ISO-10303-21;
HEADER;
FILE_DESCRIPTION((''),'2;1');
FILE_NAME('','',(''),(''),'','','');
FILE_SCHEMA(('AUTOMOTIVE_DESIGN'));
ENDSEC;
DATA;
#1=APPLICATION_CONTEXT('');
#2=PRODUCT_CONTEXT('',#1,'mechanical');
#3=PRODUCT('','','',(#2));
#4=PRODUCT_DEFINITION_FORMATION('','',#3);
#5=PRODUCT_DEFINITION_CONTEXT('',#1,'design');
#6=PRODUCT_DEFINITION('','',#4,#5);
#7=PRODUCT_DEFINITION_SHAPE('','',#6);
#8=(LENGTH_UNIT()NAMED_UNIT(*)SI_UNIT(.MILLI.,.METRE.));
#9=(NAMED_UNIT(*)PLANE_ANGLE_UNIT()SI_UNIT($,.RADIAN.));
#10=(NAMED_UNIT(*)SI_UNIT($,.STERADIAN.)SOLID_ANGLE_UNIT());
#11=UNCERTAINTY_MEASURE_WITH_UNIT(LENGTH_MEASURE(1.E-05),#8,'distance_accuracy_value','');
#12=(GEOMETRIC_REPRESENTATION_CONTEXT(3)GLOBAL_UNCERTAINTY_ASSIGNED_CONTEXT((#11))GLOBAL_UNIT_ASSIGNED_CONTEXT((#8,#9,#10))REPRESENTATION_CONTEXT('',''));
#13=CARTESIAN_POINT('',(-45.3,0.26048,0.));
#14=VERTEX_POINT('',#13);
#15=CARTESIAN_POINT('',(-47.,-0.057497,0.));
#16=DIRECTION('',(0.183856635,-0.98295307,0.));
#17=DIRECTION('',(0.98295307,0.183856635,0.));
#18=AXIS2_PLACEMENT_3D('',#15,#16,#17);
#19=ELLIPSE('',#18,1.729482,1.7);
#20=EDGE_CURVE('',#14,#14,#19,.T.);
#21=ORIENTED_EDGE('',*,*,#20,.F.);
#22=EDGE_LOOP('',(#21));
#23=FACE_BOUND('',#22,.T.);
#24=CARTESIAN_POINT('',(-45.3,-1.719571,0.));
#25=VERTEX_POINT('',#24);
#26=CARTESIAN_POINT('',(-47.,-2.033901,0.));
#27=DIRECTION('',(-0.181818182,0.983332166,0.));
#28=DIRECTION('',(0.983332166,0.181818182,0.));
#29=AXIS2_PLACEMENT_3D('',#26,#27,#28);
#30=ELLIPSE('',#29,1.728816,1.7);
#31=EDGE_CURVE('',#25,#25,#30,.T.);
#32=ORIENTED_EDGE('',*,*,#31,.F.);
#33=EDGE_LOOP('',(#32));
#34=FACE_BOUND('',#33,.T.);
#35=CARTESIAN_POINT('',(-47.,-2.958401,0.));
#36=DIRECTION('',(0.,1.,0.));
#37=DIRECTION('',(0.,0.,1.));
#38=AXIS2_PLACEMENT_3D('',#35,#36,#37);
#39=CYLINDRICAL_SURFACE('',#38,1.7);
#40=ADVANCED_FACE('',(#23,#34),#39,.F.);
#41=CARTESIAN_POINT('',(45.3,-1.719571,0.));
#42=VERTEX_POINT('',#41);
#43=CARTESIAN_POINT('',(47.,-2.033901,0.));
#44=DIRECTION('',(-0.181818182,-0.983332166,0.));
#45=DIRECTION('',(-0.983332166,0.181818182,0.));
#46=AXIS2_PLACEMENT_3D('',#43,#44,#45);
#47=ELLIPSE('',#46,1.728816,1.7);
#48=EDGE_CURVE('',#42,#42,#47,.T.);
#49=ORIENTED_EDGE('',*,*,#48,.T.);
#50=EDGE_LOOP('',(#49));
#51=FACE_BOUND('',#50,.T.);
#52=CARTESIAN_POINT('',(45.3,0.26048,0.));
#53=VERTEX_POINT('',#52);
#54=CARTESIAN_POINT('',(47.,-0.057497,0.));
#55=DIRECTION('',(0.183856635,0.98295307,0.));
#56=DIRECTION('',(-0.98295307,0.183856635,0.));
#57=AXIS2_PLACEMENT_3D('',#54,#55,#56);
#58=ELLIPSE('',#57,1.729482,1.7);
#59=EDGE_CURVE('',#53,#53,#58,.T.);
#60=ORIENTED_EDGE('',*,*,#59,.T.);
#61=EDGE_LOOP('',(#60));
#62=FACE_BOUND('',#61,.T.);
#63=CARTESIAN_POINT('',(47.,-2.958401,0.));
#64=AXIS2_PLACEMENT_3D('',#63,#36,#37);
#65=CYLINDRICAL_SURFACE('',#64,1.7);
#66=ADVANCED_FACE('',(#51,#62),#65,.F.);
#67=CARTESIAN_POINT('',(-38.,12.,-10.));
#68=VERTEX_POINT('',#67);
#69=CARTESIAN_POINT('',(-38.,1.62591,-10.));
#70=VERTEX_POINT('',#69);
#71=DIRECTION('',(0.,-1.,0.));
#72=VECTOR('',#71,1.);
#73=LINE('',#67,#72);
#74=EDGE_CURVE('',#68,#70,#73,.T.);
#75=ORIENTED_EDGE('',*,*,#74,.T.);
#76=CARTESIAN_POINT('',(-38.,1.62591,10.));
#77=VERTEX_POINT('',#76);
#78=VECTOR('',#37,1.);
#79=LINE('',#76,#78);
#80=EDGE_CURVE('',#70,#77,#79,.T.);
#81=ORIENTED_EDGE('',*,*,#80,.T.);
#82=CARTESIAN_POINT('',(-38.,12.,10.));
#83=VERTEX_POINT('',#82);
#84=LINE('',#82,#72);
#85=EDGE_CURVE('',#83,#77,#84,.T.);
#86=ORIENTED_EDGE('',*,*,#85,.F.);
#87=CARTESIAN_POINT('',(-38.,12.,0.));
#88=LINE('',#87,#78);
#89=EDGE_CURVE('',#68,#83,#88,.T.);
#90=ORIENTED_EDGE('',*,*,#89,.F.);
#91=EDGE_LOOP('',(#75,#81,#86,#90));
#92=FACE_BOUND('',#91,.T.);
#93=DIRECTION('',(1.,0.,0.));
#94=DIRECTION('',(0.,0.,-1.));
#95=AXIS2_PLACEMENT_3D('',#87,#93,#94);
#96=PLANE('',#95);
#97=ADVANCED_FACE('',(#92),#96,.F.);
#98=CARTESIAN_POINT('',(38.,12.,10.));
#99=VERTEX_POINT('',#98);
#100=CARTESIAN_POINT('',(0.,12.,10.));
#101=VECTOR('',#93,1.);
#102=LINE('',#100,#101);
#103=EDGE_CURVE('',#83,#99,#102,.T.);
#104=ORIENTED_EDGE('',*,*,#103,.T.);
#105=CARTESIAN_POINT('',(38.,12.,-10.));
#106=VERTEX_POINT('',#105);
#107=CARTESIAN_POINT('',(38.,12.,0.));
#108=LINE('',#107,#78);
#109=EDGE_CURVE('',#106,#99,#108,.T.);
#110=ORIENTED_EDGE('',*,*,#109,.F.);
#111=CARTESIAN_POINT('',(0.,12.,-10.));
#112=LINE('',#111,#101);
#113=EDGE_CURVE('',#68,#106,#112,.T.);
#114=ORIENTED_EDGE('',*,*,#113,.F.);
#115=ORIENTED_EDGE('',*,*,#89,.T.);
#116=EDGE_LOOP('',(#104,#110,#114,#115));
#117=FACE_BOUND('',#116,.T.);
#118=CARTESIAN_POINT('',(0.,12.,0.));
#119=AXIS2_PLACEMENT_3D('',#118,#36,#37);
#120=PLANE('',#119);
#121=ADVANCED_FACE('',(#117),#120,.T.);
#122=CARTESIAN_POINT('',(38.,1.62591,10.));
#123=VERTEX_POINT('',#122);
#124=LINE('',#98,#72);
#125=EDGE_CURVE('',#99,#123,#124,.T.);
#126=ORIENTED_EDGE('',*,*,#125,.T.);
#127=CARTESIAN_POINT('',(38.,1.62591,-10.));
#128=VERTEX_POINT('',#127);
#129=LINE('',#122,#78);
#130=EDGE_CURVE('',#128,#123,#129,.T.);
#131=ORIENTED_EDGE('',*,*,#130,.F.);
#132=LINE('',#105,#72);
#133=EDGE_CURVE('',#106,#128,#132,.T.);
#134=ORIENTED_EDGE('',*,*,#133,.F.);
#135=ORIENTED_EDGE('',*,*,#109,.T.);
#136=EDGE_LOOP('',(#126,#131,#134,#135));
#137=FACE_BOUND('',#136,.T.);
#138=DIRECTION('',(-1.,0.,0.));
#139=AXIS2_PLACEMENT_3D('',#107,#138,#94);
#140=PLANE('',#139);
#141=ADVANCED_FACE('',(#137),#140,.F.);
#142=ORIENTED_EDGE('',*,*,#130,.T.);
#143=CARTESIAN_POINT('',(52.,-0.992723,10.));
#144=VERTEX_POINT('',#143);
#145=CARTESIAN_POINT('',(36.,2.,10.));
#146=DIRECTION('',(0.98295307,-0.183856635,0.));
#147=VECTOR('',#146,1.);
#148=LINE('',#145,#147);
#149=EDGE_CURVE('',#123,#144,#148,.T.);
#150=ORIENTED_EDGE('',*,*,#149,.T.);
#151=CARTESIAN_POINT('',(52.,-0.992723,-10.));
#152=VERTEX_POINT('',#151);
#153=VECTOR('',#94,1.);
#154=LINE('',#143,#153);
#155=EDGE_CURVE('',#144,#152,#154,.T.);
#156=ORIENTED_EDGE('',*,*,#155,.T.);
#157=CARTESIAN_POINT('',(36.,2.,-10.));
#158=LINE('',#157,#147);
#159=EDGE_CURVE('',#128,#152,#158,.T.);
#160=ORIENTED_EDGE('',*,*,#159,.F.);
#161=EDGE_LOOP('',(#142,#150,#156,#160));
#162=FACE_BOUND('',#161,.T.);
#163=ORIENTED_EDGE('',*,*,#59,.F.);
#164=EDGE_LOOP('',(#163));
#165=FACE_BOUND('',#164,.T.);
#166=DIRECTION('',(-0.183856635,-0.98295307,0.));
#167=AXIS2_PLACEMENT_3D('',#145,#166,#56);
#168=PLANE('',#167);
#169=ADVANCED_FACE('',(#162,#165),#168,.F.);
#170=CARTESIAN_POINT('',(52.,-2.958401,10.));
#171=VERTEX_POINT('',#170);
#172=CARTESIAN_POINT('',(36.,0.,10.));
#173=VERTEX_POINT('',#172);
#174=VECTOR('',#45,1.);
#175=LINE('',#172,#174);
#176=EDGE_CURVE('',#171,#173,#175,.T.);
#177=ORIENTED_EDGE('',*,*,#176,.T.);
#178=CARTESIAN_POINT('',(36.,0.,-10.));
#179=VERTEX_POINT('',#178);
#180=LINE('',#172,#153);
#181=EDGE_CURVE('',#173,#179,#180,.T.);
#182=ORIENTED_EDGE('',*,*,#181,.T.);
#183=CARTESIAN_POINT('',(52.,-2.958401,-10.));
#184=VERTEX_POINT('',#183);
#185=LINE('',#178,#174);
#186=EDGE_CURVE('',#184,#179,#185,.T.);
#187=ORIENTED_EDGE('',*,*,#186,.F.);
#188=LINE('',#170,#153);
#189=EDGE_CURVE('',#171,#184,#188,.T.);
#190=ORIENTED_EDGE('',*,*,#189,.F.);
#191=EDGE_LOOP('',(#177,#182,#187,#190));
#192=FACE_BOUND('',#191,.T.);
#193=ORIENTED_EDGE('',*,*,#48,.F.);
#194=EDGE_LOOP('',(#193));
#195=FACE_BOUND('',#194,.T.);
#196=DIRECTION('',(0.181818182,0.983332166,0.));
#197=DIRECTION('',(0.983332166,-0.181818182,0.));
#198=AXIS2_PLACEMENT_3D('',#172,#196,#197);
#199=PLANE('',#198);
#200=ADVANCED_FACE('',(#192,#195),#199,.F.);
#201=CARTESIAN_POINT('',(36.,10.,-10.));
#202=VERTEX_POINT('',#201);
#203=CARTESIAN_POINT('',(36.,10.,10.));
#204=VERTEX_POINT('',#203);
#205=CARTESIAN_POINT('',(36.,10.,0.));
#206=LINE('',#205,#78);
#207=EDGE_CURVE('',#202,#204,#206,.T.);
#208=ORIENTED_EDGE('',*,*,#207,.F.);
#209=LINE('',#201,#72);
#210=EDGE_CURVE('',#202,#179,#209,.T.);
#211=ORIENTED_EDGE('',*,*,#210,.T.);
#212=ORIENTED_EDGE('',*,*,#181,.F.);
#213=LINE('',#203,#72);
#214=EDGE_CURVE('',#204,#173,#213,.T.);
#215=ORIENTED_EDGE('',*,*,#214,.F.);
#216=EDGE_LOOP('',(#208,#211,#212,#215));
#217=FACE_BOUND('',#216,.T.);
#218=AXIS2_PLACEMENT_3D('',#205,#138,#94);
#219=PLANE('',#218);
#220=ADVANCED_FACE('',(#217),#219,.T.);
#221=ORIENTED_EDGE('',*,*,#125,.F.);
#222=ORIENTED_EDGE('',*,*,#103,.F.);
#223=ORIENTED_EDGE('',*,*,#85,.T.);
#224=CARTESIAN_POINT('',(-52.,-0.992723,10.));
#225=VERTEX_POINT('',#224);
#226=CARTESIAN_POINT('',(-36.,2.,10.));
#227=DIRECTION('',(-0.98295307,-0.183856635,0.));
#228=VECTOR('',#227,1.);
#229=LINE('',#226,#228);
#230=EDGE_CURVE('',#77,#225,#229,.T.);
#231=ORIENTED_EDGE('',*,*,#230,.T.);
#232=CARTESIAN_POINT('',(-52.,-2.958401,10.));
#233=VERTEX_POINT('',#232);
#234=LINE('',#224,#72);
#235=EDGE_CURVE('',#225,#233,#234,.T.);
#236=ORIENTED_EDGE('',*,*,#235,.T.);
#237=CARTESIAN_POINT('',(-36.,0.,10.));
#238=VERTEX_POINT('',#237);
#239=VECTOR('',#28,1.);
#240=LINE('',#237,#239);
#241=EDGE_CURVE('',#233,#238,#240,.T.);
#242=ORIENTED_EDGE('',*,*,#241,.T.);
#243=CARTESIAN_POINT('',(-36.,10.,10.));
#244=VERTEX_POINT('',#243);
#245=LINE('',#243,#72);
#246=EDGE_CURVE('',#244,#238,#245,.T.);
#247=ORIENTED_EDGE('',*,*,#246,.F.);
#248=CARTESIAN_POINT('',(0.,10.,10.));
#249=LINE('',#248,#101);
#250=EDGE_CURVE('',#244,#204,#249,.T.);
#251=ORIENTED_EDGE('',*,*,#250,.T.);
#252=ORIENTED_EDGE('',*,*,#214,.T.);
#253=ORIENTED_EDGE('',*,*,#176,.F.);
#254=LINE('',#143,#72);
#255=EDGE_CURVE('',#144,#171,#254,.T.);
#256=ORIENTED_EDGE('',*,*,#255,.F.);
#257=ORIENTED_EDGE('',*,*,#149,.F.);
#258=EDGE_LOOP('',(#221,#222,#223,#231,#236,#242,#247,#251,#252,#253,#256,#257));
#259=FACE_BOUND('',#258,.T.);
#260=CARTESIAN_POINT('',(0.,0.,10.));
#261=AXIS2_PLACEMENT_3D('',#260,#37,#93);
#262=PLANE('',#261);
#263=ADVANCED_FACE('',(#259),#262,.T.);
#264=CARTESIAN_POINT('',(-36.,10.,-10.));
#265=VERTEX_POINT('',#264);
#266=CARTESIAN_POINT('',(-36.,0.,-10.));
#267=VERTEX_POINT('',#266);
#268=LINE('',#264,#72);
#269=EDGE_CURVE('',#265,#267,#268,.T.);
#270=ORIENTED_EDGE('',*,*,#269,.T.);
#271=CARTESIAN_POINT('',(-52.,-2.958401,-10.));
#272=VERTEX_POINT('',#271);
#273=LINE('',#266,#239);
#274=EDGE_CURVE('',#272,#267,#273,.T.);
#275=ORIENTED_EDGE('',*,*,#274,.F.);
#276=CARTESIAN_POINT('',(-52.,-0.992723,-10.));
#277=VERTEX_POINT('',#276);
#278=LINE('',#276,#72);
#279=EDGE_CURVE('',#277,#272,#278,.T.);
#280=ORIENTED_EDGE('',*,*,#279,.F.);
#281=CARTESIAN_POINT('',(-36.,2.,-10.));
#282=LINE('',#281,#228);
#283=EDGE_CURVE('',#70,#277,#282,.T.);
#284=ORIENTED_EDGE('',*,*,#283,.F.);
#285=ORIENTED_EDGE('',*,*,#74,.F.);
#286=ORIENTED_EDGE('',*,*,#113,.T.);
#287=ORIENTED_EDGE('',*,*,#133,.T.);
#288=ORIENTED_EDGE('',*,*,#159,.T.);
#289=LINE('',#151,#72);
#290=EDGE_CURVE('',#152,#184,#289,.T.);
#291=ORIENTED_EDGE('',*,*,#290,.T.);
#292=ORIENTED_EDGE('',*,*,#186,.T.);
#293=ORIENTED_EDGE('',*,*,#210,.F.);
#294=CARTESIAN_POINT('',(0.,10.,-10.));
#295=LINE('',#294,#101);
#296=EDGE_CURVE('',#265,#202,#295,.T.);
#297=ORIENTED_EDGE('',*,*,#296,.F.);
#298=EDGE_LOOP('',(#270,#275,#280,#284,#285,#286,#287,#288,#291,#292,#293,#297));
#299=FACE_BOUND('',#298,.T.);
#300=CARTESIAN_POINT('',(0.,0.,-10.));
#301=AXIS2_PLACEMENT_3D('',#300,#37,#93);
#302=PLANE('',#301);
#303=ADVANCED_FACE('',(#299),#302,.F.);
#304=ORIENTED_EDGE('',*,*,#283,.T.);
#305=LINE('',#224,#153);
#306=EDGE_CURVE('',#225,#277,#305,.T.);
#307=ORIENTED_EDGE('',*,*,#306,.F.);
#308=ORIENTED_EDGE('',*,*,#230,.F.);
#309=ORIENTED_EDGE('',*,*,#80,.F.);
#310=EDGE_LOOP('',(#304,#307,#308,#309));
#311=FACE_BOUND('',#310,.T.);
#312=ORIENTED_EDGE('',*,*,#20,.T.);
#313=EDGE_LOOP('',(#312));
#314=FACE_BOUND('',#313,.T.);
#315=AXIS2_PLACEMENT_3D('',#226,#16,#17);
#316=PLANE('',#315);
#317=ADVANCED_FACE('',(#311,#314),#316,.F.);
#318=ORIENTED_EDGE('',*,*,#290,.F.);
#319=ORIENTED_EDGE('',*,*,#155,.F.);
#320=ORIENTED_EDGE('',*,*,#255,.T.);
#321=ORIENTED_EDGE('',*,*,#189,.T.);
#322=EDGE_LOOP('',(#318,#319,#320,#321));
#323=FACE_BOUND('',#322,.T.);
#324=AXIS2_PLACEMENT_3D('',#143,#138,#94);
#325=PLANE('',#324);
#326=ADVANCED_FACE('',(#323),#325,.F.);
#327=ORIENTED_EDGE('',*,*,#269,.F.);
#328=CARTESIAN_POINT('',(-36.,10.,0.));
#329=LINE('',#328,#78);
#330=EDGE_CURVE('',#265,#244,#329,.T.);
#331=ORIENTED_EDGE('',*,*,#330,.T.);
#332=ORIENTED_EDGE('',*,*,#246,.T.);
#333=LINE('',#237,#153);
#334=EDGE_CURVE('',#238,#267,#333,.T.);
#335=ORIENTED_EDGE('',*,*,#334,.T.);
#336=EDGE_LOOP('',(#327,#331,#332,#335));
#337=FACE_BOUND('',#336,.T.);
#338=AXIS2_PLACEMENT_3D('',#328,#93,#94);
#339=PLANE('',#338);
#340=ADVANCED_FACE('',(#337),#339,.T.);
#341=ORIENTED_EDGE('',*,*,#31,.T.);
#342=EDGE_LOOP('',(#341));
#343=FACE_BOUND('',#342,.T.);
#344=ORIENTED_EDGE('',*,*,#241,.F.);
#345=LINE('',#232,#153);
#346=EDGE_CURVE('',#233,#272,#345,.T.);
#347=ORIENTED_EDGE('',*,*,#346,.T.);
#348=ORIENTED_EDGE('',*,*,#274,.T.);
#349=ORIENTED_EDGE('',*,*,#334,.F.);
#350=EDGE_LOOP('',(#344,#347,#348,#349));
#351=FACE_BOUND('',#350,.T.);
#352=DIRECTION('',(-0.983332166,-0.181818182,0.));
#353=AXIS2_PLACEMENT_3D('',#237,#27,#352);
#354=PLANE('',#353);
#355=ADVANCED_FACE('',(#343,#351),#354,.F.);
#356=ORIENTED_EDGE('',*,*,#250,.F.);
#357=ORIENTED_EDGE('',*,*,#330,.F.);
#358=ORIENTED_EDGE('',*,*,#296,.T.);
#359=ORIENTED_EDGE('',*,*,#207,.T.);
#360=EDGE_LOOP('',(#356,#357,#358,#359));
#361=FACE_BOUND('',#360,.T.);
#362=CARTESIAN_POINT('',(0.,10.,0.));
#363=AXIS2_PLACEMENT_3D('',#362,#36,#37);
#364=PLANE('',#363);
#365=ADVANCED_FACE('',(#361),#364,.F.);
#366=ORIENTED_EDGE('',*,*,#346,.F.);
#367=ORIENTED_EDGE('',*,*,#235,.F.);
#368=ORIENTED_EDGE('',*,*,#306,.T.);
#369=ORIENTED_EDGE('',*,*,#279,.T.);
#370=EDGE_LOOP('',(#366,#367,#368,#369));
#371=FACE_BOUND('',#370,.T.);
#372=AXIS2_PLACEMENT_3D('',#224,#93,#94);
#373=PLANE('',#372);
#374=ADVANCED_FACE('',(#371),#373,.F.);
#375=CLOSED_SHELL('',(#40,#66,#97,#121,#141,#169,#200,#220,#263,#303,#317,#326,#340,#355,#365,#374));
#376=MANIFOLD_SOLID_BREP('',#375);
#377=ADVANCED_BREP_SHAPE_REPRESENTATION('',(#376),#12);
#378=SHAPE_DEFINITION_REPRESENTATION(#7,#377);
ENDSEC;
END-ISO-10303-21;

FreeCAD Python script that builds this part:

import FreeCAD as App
import Part
import Sketcher
from FreeCAD import Vector
Q = App.Units.Quantity

doc = App.newDocument("Part")
params = doc.addObject("Spreadsheet::Sheet", "Params")
for row, (alias, value) in enumerate([
    ("sketch1_height", "2 mm"),
    ("pad1_length", "20 mm"),
    ("sketch2_width", "38 mm"),
    ("sketch2_height", "20 mm"),
    ("pad2_length", "12 mm"),
    ("sketch3_width", "36 mm"),
    ("sketch3_height", "20 mm"),
    ("pocket1_length", "10 mm"),
    ("sketch4_diameter", "3.4 mm"),
    ("pocket2_length", "110.590976 mm"),
], start=1):
    params.set(f"A{row}", alias)
    params.set(f"B{row}", "=" + value)
    params.setAlias(f"B{row}", alias)

body = doc.addObject("PartDesign::Body", "Body")

# Sketch on XY plane
sketch1 = body.newObject("Sketcher::SketchObject", "Sketch")
sketch1.AttachmentSupport = (doc.getObject("XY_Plane"), [""])
sketch1.MapMode = "FlatFace"
sketch1.addGeometry(Part.LineSegment(Vector(-52, -3, 0), Vector(-36, 0, 0)), False)
sketch1.addGeometry(Part.LineSegment(Vector(-36, 0, 0), Vector(-36, 2, 0)), False)
sketch1.addGeometry(Part.LineSegment(Vector(-36, 2, 0), Vector(-52, -1, 0)), False)
sketch1.addGeometry(Part.LineSegment(Vector(-52, -1, 0), Vector(-52, -3, 0)), False)
sketch1.addConstraint(Sketcher.Constraint("Coincident", 0, 2, 1, 1))
sketch1.addConstraint(Sketcher.Constraint("Coincident", 1, 2, 2, 1))
sketch1.addConstraint(Sketcher.Constraint("Coincident", 2, 2, 3, 1))
sketch1.addConstraint(Sketcher.Constraint("Coincident", 3, 2, 0, 1))
sketch1.addConstraint(Sketcher.Constraint("Vertical", 1))
sketch1.addConstraint(Sketcher.Constraint("Vertical", 3))
sketch1.addConstraint(Sketcher.Constraint("PointOnObject", 0, 2, -1))
sketch1.addConstraint(Sketcher.Constraint("DistanceY", 1, 1, 1, 2, Q("2 mm")))
sketch1.addConstraint(Sketcher.Constraint("DistanceX", 0, 2, -1, 1, Q("36 mm")))
sketch1.addConstraint(Sketcher.Constraint("DistanceX", 2, 2, -1, 1, Q("52 mm")))
sketch1.addConstraint(Sketcher.Constraint("DistanceY", 3, 2, 3, 1, Q("1.965678 mm")))
sketch1.addConstraint(Sketcher.Constraint("DistanceY", 3, 2, -1, 1, Q("2.958401 mm")))
sketch1.setExpression("Constraints[7]", "Params.sketch1_height")
pad1 = body.newObject("PartDesign::Pad", "Pad")
pad1.Profile = sketch1
pad1.setExpression("Length", "Params.pad1_length")
pad1.Midplane = True

# Sketch on XZ plane
sketch2 = body.newObject("Sketcher::SketchObject", "Sketch001")
sketch2.AttachmentSupport = (doc.getObject("XZ_Plane"), [""])
sketch2.MapMode = "FlatFace"
sketch2.addGeometry(Part.LineSegment(Vector(0, 10, 0), Vector(0, -10, 0)), False)
sketch2.addGeometry(Part.LineSegment(Vector(0, -10, 0), Vector(-38, -10, 0)), False)
sketch2.addGeometry(Part.LineSegment(Vector(-38, -10, 0), Vector(-38, 10, 0)), False)
sketch2.addGeometry(Part.LineSegment(Vector(-38, 10, 0), Vector(0, 10, 0)), False)
sketch2.addConstraint(Sketcher.Constraint("Coincident", 0, 2, 1, 1))
sketch2.addConstraint(Sketcher.Constraint("Coincident", 1, 2, 2, 1))
sketch2.addConstraint(Sketcher.Constraint("Coincident", 2, 2, 3, 1))
sketch2.addConstraint(Sketcher.Constraint("Coincident", 3, 2, 0, 1))
sketch2.addConstraint(Sketcher.Constraint("Vertical", 0))
sketch2.addConstraint(Sketcher.Constraint("Horizontal", 1))
sketch2.addConstraint(Sketcher.Constraint("Vertical", 2))
sketch2.addConstraint(Sketcher.Constraint("Horizontal", 3))
sketch2.addConstraint(Sketcher.Constraint("Symmetric", 0, 2, 3, 2, -1, 1))
sketch2.addConstraint(Sketcher.Constraint("DistanceX", 1, 2, 1, 1, Q("38 mm")))
sketch2.addConstraint(Sketcher.Constraint("DistanceY", 0, 2, 0, 1, Q("20 mm")))
sketch2.setExpression("Constraints[9]", "Params.sketch2_width")
sketch2.setExpression("Constraints[10]", "Params.sketch2_height")
pad2 = body.newObject("PartDesign::Pad", "Pad001")
pad2.Profile = sketch2
pad2.setExpression("Length", "Params.pad2_length")
pad2.Reversed = True

# Sketch on XZ plane
sketch3 = body.newObject("Sketcher::SketchObject", "Sketch002")
sketch3.AttachmentSupport = (doc.getObject("XZ_Plane"), [""])
sketch3.MapMode = "FlatFace"
sketch3.addGeometry(Part.LineSegment(Vector(-36, -10, 0), Vector(-36, 10, 0)), False)
sketch3.addGeometry(Part.LineSegment(Vector(-36, 10, 0), Vector(0, 10, 0)), False)
sketch3.addGeometry(Part.LineSegment(Vector(0, 10, 0), Vector(0, -10, 0)), False)
sketch3.addGeometry(Part.LineSegment(Vector(0, -10, 0), Vector(-36, -10, 0)), False)
sketch3.addConstraint(Sketcher.Constraint("Coincident", 0, 2, 1, 1))
sketch3.addConstraint(Sketcher.Constraint("Coincident", 1, 2, 2, 1))
sketch3.addConstraint(Sketcher.Constraint("Coincident", 2, 2, 3, 1))
sketch3.addConstraint(Sketcher.Constraint("Coincident", 3, 2, 0, 1))
sketch3.addConstraint(Sketcher.Constraint("Vertical", 0))
sketch3.addConstraint(Sketcher.Constraint("Horizontal", 1))
sketch3.addConstraint(Sketcher.Constraint("Vertical", 2))
sketch3.addConstraint(Sketcher.Constraint("Horizontal", 3))
sketch3.addConstraint(Sketcher.Constraint("Symmetric", 1, 2, 2, 2, -1, 1))
sketch3.addConstraint(Sketcher.Constraint("DistanceX", 1, 1, 1, 2, Q("36 mm")))
sketch3.addConstraint(Sketcher.Constraint("DistanceY", 0, 1, 0, 2, Q("20 mm")))
sketch3.setExpression("Constraints[9]", "Params.sketch3_width")
sketch3.setExpression("Constraints[10]", "Params.sketch3_height")
pocket1 = body.newObject("PartDesign::Pocket", "Pocket")
pocket1.Profile = sketch3
pocket1.setExpression("Length", "Params.pocket1_length")

# Sketch on XZ plane
sketch4 = body.newObject("Sketcher::SketchObject", "Sketch003")
sketch4.AttachmentSupport = (doc.getObject("XZ_Plane"), [""])
sketch4.MapMode = "FlatFace"
sketch4.addGeometry(Part.Circle(Vector(-47, 0, 0), Vector(0, 0, 1), 1.7), False)
sketch4.addConstraint(Sketcher.Constraint("PointOnObject", 0, 3, -1))
sketch4.addConstraint(Sketcher.Constraint("Diameter", 0, Q("3.4 mm")))
sketch4.addConstraint(Sketcher.Constraint("DistanceX", 0, 3, -1, 1, Q("47 mm")))
sketch4.setExpression("Constraints[1]", "Params.sketch4_diameter")
pocket2 = body.newObject("PartDesign::Pocket", "Pocket001")
pocket2.Profile = sketch4
pocket2.setExpression("Length", "Params.pocket2_length")
pocket2.Midplane = True
doc.recompute()

mirrored = body.newObject("PartDesign::Mirrored", "Mirrored")
mirrored.Originals = [pad1, pad2, pocket1, pocket2]
mirrored.MirrorPlane = (doc.getObject("YZ_Plane"), [""])
body.Tip = mirrored

doc.recompute()
